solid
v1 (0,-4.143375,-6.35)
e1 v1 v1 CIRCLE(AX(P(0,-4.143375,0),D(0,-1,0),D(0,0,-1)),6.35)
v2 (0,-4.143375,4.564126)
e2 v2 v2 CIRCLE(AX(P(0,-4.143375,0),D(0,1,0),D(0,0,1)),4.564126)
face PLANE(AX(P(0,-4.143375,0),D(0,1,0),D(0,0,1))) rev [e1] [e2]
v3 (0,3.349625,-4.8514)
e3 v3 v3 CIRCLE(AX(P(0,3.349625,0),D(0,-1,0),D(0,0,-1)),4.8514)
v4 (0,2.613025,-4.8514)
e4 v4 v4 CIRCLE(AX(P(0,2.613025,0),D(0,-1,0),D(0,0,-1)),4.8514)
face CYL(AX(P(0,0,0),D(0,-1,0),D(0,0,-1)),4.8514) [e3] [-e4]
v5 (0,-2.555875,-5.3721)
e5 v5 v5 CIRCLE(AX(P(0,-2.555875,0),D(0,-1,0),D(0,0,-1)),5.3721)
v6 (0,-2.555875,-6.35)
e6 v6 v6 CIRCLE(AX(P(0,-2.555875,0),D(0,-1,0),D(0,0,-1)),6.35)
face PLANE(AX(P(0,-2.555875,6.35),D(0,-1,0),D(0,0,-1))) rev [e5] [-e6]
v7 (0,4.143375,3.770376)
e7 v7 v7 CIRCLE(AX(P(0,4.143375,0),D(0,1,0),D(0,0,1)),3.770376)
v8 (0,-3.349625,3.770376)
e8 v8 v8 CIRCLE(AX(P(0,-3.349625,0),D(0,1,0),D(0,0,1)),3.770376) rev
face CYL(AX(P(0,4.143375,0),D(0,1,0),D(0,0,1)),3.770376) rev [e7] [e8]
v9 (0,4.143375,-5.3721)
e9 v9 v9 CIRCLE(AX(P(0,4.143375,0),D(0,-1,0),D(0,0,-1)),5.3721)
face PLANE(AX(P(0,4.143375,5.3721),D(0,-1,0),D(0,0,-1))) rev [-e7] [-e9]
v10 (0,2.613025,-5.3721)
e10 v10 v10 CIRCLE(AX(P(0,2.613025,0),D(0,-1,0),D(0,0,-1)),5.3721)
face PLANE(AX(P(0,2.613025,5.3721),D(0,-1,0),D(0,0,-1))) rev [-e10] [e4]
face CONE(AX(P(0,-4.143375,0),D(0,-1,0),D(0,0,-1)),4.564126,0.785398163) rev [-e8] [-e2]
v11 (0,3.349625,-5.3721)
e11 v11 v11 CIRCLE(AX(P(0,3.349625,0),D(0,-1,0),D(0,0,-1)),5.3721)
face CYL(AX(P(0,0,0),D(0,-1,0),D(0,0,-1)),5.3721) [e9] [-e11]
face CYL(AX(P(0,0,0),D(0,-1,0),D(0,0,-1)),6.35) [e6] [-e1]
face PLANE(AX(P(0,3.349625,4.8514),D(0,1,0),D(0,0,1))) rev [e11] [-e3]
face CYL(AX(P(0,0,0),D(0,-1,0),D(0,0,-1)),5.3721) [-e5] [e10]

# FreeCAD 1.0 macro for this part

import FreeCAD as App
import Part
import Sketcher

V = App.Vector
Q = App.Units.Quantity


def edges_at(feature, points):
    """Names of the edges that pass closest to the given points."""
    edges = feature.Shape.Edges
    near = lambda p: min(range(len(edges)), key=lambda i: edges[i].distToShape(Part.Vertex(*p))[0])
    return sorted({f"Edge{near(p) + 1}" for p in points})

doc = App.newDocument("Part")
body = doc.addObject("PartDesign::Body", "Body")

# Sketch on YZ plane
sketch1 = body.newObject("Sketcher::SketchObject", "Sketch")
sketch1.AttachmentSupport = (doc.getObject("YZ_Plane"), [""])
sketch1.MapMode = "FlatFace"
sketch1.addGeometry(Part.LineSegment(V(-4.1, 6.3, 0), V(-4.1, 0, 0)), False)
sketch1.addGeometry(Part.LineSegment(V(-4.1, 0, 0), V(4.1, 0, 0)), False)
sketch1.addGeometry(Part.LineSegment(V(4.1, 0, 0), V(4.1, 5.4, 0)), False)
sketch1.addGeometry(Part.LineSegment(V(4.1, 5.4, 0), V(3.3, 5.4, 0)), False)
sketch1.addGeometry(Part.LineSegment(V(3.3, 5.4, 0), V(3.3, 4.9, 0)), False)
sketch1.addGeometry(Part.LineSegment(V(3.3, 4.9, 0), V(2.6, 4.9, 0)), False)
sketch1.addGeometry(Part.LineSegment(V(2.6, 4.9, 0), V(2.6, 5.4, 0)), False)
sketch1.addGeometry(Part.LineSegment(V(2.6, 5.4, 0), V(-2.6, 5.4, 0)), False)
sketch1.addGeometry(Part.LineSegment(V(-2.6, 5.4, 0), V(-2.6, 6.3, 0)), False)
sketch1.addGeometry(Part.LineSegment(V(-2.6, 6.3, 0), V(-4.1, 6.3, 0)), False)
sketch1.addConstraint(Sketcher.Constraint("Coincident", 0, 2, 1, 1))
sketch1.addConstraint(Sketcher.Constraint("Coincident", 1, 2, 2, 1))
sketch1.addConstraint(Sketcher.Constraint("Coincident", 2, 2, 3, 1))
sketch1.addConstraint(Sketcher.Constraint("Coincident", 3, 2, 4, 1))
sketch1.addConstraint(Sketcher.Constraint("Coincident", 4, 2, 5, 1))
sketch1.addConstraint(Sketcher.Constraint("Coincident", 5, 2, 6, 1))
sketch1.addConstraint(Sketcher.Constraint("Coincident", 6, 2, 7, 1))
sketch1.addConstraint(Sketcher.Constraint("Coincident", 7, 2, 8, 1))
sketch1.addConstraint(Sketcher.Constraint("Coincident", 8, 2, 9, 1))
sketch1.addConstraint(Sketcher.Constraint("Coincident", 9, 2, 0, 1))
sketch1.addConstraint(Sketcher.Constraint("Vertical", 0))
sketch1.addConstraint(Sketcher.Constraint("Horizontal", 1))
sketch1.addConstraint(Sketcher.Constraint("Vertical", 2))
sketch1.addConstraint(Sketcher.Constraint("Horizontal", 3))
sketch1.addConstraint(Sketcher.Constraint("Vertical", 4))
sketch1.addConstraint(Sketcher.Constraint("Horizontal", 5))
sketch1.addConstraint(Sketcher.Constraint("Vertical", 6))
sketch1.addConstraint(Sketcher.Constraint("Horizontal", 7))
sketch1.addConstraint(Sketcher.Constraint("Vertical", 8))
sketch1.addConstraint(Sketcher.Constraint("Horizontal", 9))
sketch1.addConstraint(Sketcher.Constraint("Symmetric", 0, 2, 1, 2, -1, 1))
sketch1.addConstraint(Sketcher.Constraint("Horizontal", 3, 2, 6, 2))
sketch1.addConstraint(Sketcher.Constraint("DistanceY", 0, 2, 0, 1, Q("0.25 in")))
sketch1.addConstraint(Sketcher.Constraint("DistanceX", 3, 2, 3, 1, Q("0.03125 in")))
sketch1.addConstraint(Sketcher.Constraint("DistanceX", 5, 2, 5, 1, Q("0.029 in")))
sketch1.addConstraint(Sketcher.Constraint("DistanceX", 9, 2, 9, 1, Q("0.0625 in")))
sketch1.addConstraint(Sketcher.Constraint("DistanceX", 7, 2, 7, 1, Q("0.2035 in")))
sketch1.addConstraint(Sketcher.Constraint("DistanceY", 2, 1, 2, 2, Q("0.2115 in")))
sketch1.addConstraint(Sketcher.Constraint("DistanceY", 4, 2, 4, 1, Q("0.0205 in")))
revolution = body.newObject("PartDesign::Revolution", "Revolution")
revolution.Profile = sketch1
revolution.ReferenceAxis = (sketch1, ["H_Axis"])
revolution.Angle = 360

# Sketch on XZ plane
sketch2 = body.newObject("Sketcher::SketchObject", "Sketch001")
sketch2.AttachmentSupport = (doc.getObject("XZ_Plane"), [""])
sketch2.MapMode = "FlatFace"
sketch2.AttachmentOffset = App.Placement(V(0, 0, -4.143375), App.Rotation())
sketch2.addGeometry(Part.Circle(V(0, 0, 0), V(0, 0, 1), 3.8), False)
sketch2.addConstraint(Sketcher.Constraint("Coincident", 0, 3, -1, 1))
sketch2.addConstraint(Sketcher.Constraint("Diameter", 0, 7.540752))
doc.recompute()
hole = body.newObject("PartDesign::Hole", "Hole")
hole.Profile = sketch2
hole.ThreadType = "None"
hole.Diameter = 7.540752
hole.DepthType = "Dimension"
hole.Depth = Q("0.33 in")
hole.DrillPoint = "Angled"
hole.DrillPointAngle = 118
hole.Reversed = True
doc.recompute()

chamfer = body.newObject("PartDesign::Chamfer", "Chamfer")
chamfer.Base = (hole, edges_at(hole, [(3.77, -4.143, 0)]))
chamfer.Size = Q("0.03125 in")

doc.recompute()
